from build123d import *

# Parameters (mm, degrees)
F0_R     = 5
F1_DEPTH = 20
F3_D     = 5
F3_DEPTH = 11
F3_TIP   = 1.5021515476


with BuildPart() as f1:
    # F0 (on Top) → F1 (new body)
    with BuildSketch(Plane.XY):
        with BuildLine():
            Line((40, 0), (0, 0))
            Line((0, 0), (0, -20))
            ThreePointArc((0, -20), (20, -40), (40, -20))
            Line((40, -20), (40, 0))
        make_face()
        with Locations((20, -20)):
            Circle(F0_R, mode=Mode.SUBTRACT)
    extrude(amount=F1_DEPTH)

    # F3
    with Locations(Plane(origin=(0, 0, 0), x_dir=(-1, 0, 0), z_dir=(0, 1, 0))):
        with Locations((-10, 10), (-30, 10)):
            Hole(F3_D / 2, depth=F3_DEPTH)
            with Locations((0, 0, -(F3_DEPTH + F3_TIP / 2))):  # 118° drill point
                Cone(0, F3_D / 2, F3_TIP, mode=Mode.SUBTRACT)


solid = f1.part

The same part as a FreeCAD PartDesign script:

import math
import FreeCAD as App
import Part
import Sketcher
from FreeCAD import Vector

doc = App.newDocument("Part")
params = doc.addObject("Spreadsheet::Sheet", "Params")
for row, (alias, value) in enumerate([
    ("sketch1_diameter", "10 mm"),
    ("sketch1_radius", "20 mm"),
    ("sketch1_height", "20 mm"),
    ("pad1_length", "20 mm"),
    ("sketch2_diameter", "5 mm"),
    ("hole_diameter", "5 mm"),
    ("hole_depth", "11 mm"),
], start=1):
    params.set(f"A{row}", alias)
    params.set(f"B{row}", "=" + value)
    params.setAlias(f"B{row}", alias)

body = doc.addObject("PartDesign::Body", "Body")

# Sketch on XY plane
sketch1 = body.newObject("Sketcher::SketchObject", "Sketch")
sketch1.AttachmentSupport = (doc.getObject("XY_Plane"), [""])
sketch1.MapMode = "FlatFace"
sketch1.addGeometry(Part.LineSegment(Vector(40, 0, 0), Vector(0, 0, 0)), False)
sketch1.addGeometry(Part.LineSegment(Vector(0, 0, 0), Vector(0, -20, 0)), False)
sketch1.addGeometry(Part.ArcOfCircle(Part.Circle(Vector(20, -20, 0), Vector(0, 0, 1), 20), math.radians(180), math.radians(360)), False)
sketch1.addGeometry(Part.LineSegment(Vector(40, -20, 0), Vector(40, 0, 0)), False)
sketch1.addGeometry(Part.Circle(Vector(20, -20, 0), Vector(0, 0, 1), 5), False)
sketch1.addConstraint(Sketcher.Constraint("Coincident", 0, 2, 1, 1))
sketch1.addConstraint(Sketcher.Constraint("Tangent", 1, 2, 2, 1))
sketch1.addConstraint(Sketcher.Constraint("Tangent", 2, 2, 3, 1))
sketch1.addConstraint(Sketcher.Constraint("Coincident", 3, 2, 0, 1))
sketch1.addConstraint(Sketcher.Constraint("Horizontal", 0))
sketch1.addConstraint(Sketcher.Constraint("Vertical", 1))
sketch1.addConstraint(Sketcher.Constraint("Vertical", 3))
sketch1.addConstraint(Sketcher.Constraint("Coincident", 0, 2, -1, 1))
sketch1.addConstraint(Sketcher.Constraint("Coincident", 4, 3, 2, 3))
sketch1.addConstraint(Sketcher.Constraint("Diameter", 4, 10.0))
sketch1.addConstraint(Sketcher.Constraint("Radius", 2, 20.0))
sketch1.addConstraint(Sketcher.Constraint("DistanceY", 1, 2, 1, 1, 20.0))
sketch1.setExpression("Constraints[9]", "Params.sketch1_diameter")
sketch1.setExpression("Constraints[10]", "Params.sketch1_radius")
sketch1.setExpression("Constraints[11]", "Params.sketch1_height")
pad1 = body.newObject("PartDesign::Pad", "Pad")
pad1.Profile = sketch1
pad1.setExpression("Length", "Params.pad1_length")

# Sketch on XZ plane
sketch2 = body.newObject("Sketcher::SketchObject", "Sketch001")
sketch2.AttachmentSupport = (doc.getObject("XZ_Plane"), [""])
sketch2.MapMode = "FlatFace"
sketch2.addGeometry(Part.Circle(Vector(10, 10, 0), Vector(0, 0, 1), 2.5), False)
sketch2.addGeometry(Part.Circle(Vector(30, 10, 0), Vector(0, 0, 1), 2.5), False)
sketch2.addConstraint(Sketcher.Constraint("Equal", 0, 1))
sketch2.addConstraint(Sketcher.Constraint("Horizontal", 0, 3, 1, 3))
sketch2.addConstraint(Sketcher.Constraint("Diameter", 0, 5.0))
sketch2.addConstraint(Sketcher.Constraint("DistanceX", -1, 1, 0, 3, 10.0))
sketch2.addConstraint(Sketcher.Constraint("DistanceY", -1, 1, 0, 3, 10.0))
sketch2.addConstraint(Sketcher.Constraint("DistanceX", -1, 1, 1, 3, 30.0))
sketch2.setExpression("Constraints[2]", "Params.sketch2_diameter")
doc.recompute()
hole = body.newObject("PartDesign::Hole", "Hole")
hole.Profile = sketch2
hole.ThreadType = "None"
hole.setExpression("Diameter", "Params.hole_diameter")
hole.DepthType = "Dimension"
hole.setExpression("Depth", "Params.hole_depth")
hole.DrillPoint = "Angled"
hole.DrillPointAngle = 118
hole.Reversed = True

doc.recompute()
